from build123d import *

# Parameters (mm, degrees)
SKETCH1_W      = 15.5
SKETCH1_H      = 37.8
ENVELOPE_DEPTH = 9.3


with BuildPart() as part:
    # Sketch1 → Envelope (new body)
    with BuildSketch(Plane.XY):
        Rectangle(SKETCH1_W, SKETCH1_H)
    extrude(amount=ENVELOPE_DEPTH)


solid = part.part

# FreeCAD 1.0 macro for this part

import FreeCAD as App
import Part
import Sketcher


def add_polygon(sketch, points):
    """Adds a closed chain of lines whose ends are joined by coincident constraints."""
    first, n = sketch.GeometryCount, len(points)
    for a, b in zip(points, points[1:] + points[:1]):
        sketch.addGeometry(Part.LineSegment(App.Vector(*a, 0), App.Vector(*b, 0)), False)
    for i in range(n):
        sketch.addConstraint(Sketcher.Constraint("Coincident", first + i, 2, first + (i + 1) % n, 1))

doc = App.newDocument("Part")
body = doc.addObject("PartDesign::Body", "Body")

sketch1 = body.newObject("Sketcher::SketchObject", "Sketch")
sketch1.AttachmentSupport = (doc.getObject("XY_Plane"), [""])
sketch1.MapMode = "FlatFace"
add_polygon(sketch1, [(-8, 19), (-8, -19), (8, -19), (8, 19)])
sketch1.addConstraint([
    Sketcher.Constraint("Vertical", 0),
    Sketcher.Constraint("Horizontal", 1),
    Sketcher.Constraint("Vertical", 2),
    Sketcher.Constraint("Horizontal", 3),
    Sketcher.Constraint("Symmetric", 0, 2, 2, 2, -1, 1),
    Sketcher.Constraint("DistanceX", 1, 1, 1, 2, 15.5),
    Sketcher.Constraint("DistanceY", 0, 2, 0, 1, 37.8),
])
pad1 = body.newObject("PartDesign::Pad", "Pad")
pad1.Profile = sketch1
pad1.Length = 9.3

doc.recompute()
